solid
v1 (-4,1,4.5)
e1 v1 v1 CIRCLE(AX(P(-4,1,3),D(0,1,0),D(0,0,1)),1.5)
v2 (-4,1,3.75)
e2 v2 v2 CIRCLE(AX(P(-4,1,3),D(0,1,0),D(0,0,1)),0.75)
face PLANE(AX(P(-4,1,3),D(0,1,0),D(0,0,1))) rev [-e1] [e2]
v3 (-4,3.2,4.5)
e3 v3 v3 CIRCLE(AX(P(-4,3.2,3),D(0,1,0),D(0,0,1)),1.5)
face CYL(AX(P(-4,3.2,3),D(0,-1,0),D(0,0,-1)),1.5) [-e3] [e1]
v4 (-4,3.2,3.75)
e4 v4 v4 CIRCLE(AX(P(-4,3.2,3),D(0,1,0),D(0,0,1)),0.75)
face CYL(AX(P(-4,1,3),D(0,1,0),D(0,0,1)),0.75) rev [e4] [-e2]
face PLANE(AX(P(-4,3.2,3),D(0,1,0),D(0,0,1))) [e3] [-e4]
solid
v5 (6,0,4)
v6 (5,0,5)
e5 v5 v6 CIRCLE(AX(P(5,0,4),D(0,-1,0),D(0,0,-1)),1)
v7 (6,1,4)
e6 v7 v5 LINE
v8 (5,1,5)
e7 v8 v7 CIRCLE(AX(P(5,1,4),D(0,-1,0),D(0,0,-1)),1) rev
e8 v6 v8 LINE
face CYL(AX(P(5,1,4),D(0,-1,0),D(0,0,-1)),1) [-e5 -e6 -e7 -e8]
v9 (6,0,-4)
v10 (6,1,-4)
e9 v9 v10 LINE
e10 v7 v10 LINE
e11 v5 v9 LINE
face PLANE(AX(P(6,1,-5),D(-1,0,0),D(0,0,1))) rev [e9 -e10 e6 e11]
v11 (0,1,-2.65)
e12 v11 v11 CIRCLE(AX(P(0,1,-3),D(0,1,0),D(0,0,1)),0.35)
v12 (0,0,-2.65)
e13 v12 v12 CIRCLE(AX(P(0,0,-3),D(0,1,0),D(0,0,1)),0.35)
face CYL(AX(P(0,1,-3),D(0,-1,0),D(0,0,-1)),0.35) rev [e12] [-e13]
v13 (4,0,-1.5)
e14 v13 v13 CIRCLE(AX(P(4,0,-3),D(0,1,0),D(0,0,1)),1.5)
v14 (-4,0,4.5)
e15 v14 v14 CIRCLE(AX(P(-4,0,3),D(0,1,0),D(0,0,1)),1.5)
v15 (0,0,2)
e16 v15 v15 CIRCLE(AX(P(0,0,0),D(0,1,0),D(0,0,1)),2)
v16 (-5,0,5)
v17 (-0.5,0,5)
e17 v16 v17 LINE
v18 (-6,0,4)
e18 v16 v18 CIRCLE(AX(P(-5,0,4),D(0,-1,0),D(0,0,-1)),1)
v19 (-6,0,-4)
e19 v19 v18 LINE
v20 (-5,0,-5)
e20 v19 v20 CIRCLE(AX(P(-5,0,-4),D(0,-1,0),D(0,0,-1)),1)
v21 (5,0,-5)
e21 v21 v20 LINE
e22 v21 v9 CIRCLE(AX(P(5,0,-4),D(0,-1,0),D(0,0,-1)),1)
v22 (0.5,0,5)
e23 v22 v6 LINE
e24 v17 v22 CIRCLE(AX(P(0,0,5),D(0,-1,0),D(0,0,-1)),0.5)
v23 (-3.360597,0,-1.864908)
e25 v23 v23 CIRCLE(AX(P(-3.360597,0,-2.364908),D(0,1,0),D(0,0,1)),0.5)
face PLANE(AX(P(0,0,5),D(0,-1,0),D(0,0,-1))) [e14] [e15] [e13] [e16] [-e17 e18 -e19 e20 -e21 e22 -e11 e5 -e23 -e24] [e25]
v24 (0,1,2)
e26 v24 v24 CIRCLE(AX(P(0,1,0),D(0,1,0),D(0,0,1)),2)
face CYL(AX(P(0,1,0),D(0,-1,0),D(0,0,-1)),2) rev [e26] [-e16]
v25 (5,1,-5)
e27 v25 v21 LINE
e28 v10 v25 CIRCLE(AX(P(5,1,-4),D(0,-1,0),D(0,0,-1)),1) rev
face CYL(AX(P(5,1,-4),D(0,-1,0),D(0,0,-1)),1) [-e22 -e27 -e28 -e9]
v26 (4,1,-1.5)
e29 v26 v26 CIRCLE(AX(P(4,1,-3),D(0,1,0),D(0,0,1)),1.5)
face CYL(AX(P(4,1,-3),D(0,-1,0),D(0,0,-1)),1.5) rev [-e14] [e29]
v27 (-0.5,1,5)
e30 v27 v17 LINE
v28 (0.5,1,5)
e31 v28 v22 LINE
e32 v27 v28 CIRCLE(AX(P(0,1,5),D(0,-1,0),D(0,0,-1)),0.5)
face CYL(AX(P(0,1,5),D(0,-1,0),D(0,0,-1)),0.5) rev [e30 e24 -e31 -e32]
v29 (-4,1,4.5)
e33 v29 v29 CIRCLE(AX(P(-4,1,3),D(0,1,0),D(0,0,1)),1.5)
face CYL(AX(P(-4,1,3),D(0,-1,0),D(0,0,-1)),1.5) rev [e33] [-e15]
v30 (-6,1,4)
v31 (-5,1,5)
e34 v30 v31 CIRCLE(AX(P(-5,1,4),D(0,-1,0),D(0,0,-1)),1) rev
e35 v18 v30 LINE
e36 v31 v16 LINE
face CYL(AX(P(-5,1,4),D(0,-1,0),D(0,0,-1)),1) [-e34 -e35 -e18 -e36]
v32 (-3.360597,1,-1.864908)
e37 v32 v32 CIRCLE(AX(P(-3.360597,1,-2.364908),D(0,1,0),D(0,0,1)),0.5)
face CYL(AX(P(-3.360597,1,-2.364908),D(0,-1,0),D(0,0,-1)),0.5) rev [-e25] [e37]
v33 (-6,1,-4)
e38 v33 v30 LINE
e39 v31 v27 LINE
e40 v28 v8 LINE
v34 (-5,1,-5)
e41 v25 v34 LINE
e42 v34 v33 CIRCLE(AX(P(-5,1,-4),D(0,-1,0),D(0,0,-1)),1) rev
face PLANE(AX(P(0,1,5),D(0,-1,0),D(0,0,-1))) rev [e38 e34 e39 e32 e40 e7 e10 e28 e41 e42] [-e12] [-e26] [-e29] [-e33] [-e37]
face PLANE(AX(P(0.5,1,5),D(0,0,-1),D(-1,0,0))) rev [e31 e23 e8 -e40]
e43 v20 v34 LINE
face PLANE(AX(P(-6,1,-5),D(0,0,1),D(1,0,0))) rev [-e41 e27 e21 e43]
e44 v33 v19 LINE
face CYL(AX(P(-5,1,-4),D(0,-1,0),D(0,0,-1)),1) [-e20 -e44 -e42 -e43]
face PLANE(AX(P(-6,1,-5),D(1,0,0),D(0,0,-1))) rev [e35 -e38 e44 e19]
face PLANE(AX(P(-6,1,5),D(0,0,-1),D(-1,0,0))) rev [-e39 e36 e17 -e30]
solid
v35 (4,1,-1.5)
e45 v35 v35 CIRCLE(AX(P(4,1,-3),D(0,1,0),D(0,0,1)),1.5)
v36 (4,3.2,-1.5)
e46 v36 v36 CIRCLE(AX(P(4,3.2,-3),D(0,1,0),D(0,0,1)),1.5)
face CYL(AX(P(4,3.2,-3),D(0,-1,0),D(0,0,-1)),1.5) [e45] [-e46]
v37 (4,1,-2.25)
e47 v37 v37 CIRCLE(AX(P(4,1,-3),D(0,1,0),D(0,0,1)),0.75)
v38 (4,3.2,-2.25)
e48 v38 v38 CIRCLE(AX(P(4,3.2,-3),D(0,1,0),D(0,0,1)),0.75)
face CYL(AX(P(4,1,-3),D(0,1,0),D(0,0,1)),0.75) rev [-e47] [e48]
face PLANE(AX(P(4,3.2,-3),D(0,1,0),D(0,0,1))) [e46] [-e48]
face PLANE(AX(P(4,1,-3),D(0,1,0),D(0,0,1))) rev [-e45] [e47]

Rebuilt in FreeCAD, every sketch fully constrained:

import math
import FreeCAD as App
import Part
import Sketcher
Q = App.Units.Quantity


def edges_at(feature, points):
    """Names of the edges that pass closest to the given points."""
    edges = feature.Shape.Edges
    near = lambda p: min(range(len(edges)), key=lambda i: edges[i].distToShape(Part.Vertex(*p))[0])
    return sorted({f"Edge{near(p) + 1}" for p in points})

doc = App.newDocument("Part")
body = doc.addObject("PartDesign::Body", "Body")

sketch1 = body.newObject("Sketcher::SketchObject", "Sketch")
sketch1.AttachmentSupport = (doc.getObject("XZ_Plane"), [""])
sketch1.MapMode = "FlatFace"
sketch1.addGeometry(Part.LineSegment(App.Vector(6, -5, 0), App.Vector(-6, -5, 0)), False)
sketch1.addGeometry(Part.LineSegment(App.Vector(-6, -5, 0), App.Vector(-6, 5, 0)), False)
sketch1.addGeometry(Part.LineSegment(App.Vector(-6, 5, 0), App.Vector(-0.5, 5, 0)), False)
sketch1.addGeometry(Part.ArcOfCircle(Part.Circle(App.Vector(0, 5, 0), App.Vector(0, 0, 1), 0.5), math.radians(180), math.radians(360)), False)
sketch1.addGeometry(Part.LineSegment(App.Vector(0.5, 5, 0), App.Vector(6, 5, 0)), False)
sketch1.addGeometry(Part.LineSegment(App.Vector(6, 5, 0), App.Vector(6, -5, 0)), False)
sketch1.addGeometry(Part.Circle(App.Vector(-4, 3, 0), App.Vector(0, 0, 1), 1.5), False)
sketch1.addGeometry(Part.Circle(App.Vector(4, -3, 0), App.Vector(0, 0, 1), 1.5), False)
sketch1.addGeometry(Part.Circle(App.Vector(0, 0, 0), App.Vector(0, 0, 1), 2), False)
sketch1.addGeometry(Part.Circle(App.Vector(0, -3, 0), App.Vector(0, 0, 1), 0.35), False)
sketch1.addGeometry(Part.Circle(App.Vector(-3.36, -2.36, 0), App.Vector(0, 0, 1), 0.5), False)
sketch1.addConstraint(Sketcher.Constraint("Coincident", 0, 2, 1, 1))
sketch1.addConstraint(Sketcher.Constraint("Coincident", 1, 2, 2, 1))
sketch1.addConstraint(Sketcher.Constraint("Coincident", 2, 2, 3, 1))
sketch1.addConstraint(Sketcher.Constraint("Coincident", 3, 2, 4, 1))
sketch1.addConstraint(Sketcher.Constraint("Coincident", 4, 2, 5, 1))
sketch1.addConstraint(Sketcher.Constraint("Coincident", 5, 2, 0, 1))
sketch1.addConstraint(Sketcher.Constraint("Horizontal", 0))
sketch1.addConstraint(Sketcher.Constraint("Vertical", 1))
sketch1.addConstraint(Sketcher.Constraint("Horizontal", 2))
sketch1.addConstraint(Sketcher.Constraint("Horizontal", 4))
sketch1.addConstraint(Sketcher.Constraint("Vertical", 5))
sketch1.addConstraint(Sketcher.Constraint("Coincident", 8, 3, -1, 1))
sketch1.addConstraint(Sketcher.Constraint("Equal", 6, 7))
sketch1.addConstraint(Sketcher.Constraint("Equal", 3, 10))
sketch1.addConstraint(Sketcher.Constraint("Symmetric", 6, 3, 7, 3, -1, 1))
sketch1.addConstraint(Sketcher.Constraint("Symmetric", 0, 2, 4, 2, -1, 1))
sketch1.addConstraint(Sketcher.Constraint("Symmetric", 2, 2, 3, 2, -2))
sketch1.addConstraint(Sketcher.Constraint("PointOnObject", 9, 3, -2))
sketch1.addConstraint(Sketcher.Constraint("Horizontal", 7, 3, 9, 3))
sketch1.addConstraint(Sketcher.Constraint("Horizontal", 3, 3, 1, 2))
sketch1.addConstraint(Sketcher.Constraint("Diameter", 6, Q("3 mm")))
sketch1.addConstraint(Sketcher.Constraint("Diameter", 8, Q("4 mm")))
sketch1.addConstraint(Sketcher.Constraint("Diameter", 10, Q("1 mm")))
sketch1.addConstraint(Sketcher.Constraint("Diameter", 9, Q("0.7 mm")))
sketch1.addConstraint(Sketcher.Constraint("DistanceX", 0, 2, 0, 1, Q("12 mm")))
sketch1.addConstraint(Sketcher.Constraint("DistanceY", 1, 1, 1, 2, Q("10 mm")))
sketch1.addConstraint(Sketcher.Constraint("DistanceX", 6, 3, -1, 1, Q("4 mm")))
sketch1.addConstraint(Sketcher.Constraint("DistanceY", -1, 1, 6, 3, Q("3 mm")))
sketch1.addConstraint(Sketcher.Constraint("DistanceY", 10, 3, -1, 1, Q("2.364908 mm")))
sketch1.addConstraint(Sketcher.Constraint("DistanceX", 10, 3, -1, 1, Q("3.360597 mm")))
pad1 = body.newObject("PartDesign::Pad", "Pad")
pad1.Profile = sketch1
pad1.Length = 1
pad1.Reversed = True
doc.recompute()

fillet = body.newObject("PartDesign::Fillet", "Fillet")
fillet.Base = (pad1, edges_at(pad1, [
    (-6, 0.5, 5),
    (-6, 0.5, -5),
    (6, 0.5, -5),
    (6, 0.5, 5),
]))
fillet.Radius = 1
body2 = doc.addObject("PartDesign::Body", "Body001")

sketch2 = body2.newObject("Sketcher::SketchObject", "Sketch001")
sketch2.AttachmentSupport = (doc.getObject("XZ_Plane001"), [""])
sketch2.MapMode = "FlatFace"
sketch2.AttachmentOffset = App.Placement(App.Vector(0, 0, -1), App.Rotation())
sketch2.addGeometry(Part.Circle(App.Vector(4, -3, 0), App.Vector(0, 0, 1), 1.5), False)
sketch2.addConstraint(Sketcher.Constraint("Diameter", 0, Q("3 mm")))
sketch2.addConstraint(Sketcher.Constraint("DistanceX", -1, 1, 0, 3, Q("4 mm")))
sketch2.addConstraint(Sketcher.Constraint("DistanceY", 0, 3, -1, 1, Q("3 mm")))
pad2 = body2.newObject("PartDesign::Pad", "Pad001")
pad2.Profile = sketch2
pad2.Length = 2.2
pad2.Reversed = True
body3 = doc.addObject("PartDesign::Body", "Body002")

sketch3 = body3.newObject("Sketcher::SketchObject", "Sketch002")
sketch3.AttachmentSupport = (doc.getObject("XZ_Plane002"), [""])
sketch3.MapMode = "FlatFace"
sketch3.AttachmentOffset = App.Placement(App.Vector(0, 0, -1), App.Rotation())
sketch3.addGeometry(Part.Circle(App.Vector(-4, 3, 0), App.Vector(0, 0, 1), 1.5), False)
sketch3.addConstraint(Sketcher.Constraint("Diameter", 0, Q("3 mm")))
sketch3.addConstraint(Sketcher.Constraint("DistanceX", 0, 3, -1, 1, Q("4 mm")))
sketch3.addConstraint(Sketcher.Constraint("DistanceY", -1, 1, 0, 3, Q("3 mm")))
pad3 = body3.newObject("PartDesign::Pad", "Pad002")
pad3.Profile = sketch3
pad3.Length = 2.2
pad3.Reversed = True
body4 = doc.addObject("PartDesign::Body", "Body003")
body4.AllowCompound = True

sketch4 = body4.newObject("Sketcher::SketchObject", "Sketch003")
sketch4.AttachmentSupport = (doc.getObject("XZ_Plane003"), [""])
sketch4.MapMode = "FlatFace"
sketch4.AttachmentOffset = App.Placement(App.Vector(0, 0, -3.2), App.Rotation())
sketch4.addGeometry(Part.Circle(App.Vector(4, -3, 0), App.Vector(0, 0, 1), 0.8), False)
sketch4.addGeometry(Part.Circle(App.Vector(-4, 3, 0), App.Vector(0, 0, 1), 0.8), False)
sketch4.addConstraint(Sketcher.Constraint("Equal", 0, 1))
sketch4.addConstraint(Sketcher.Constraint("Symmetric", 0, 3, 1, 3, -1, 1))
sketch4.addConstraint(Sketcher.Constraint("Diameter", 0, Q("1.5 mm")))
sketch4.addConstraint(Sketcher.Constraint("DistanceX", -1, 1, 0, 3, Q("4 mm")))
sketch4.addConstraint(Sketcher.Constraint("DistanceY", 0, 3, -1, 1, Q("3 mm")))
pad4 = body4.newObject("PartDesign::Pad", "Pad003")
pad4.Profile = sketch4
pad4.Length = 2.2
doc.recompute()

body5 = doc.addObject("PartDesign::Body", "Body004")
body5.BaseFeature = body4
boolean = body2.newObject("PartDesign::Boolean", "Boolean")
boolean.Type = "Cut"
boolean.addObjects([body5])
doc.recompute()

boolean2 = body3.newObject("PartDesign::Boolean", "Boolean001")
boolean2.Type = "Cut"
boolean2.addObjects([body4])

doc.recompute()
